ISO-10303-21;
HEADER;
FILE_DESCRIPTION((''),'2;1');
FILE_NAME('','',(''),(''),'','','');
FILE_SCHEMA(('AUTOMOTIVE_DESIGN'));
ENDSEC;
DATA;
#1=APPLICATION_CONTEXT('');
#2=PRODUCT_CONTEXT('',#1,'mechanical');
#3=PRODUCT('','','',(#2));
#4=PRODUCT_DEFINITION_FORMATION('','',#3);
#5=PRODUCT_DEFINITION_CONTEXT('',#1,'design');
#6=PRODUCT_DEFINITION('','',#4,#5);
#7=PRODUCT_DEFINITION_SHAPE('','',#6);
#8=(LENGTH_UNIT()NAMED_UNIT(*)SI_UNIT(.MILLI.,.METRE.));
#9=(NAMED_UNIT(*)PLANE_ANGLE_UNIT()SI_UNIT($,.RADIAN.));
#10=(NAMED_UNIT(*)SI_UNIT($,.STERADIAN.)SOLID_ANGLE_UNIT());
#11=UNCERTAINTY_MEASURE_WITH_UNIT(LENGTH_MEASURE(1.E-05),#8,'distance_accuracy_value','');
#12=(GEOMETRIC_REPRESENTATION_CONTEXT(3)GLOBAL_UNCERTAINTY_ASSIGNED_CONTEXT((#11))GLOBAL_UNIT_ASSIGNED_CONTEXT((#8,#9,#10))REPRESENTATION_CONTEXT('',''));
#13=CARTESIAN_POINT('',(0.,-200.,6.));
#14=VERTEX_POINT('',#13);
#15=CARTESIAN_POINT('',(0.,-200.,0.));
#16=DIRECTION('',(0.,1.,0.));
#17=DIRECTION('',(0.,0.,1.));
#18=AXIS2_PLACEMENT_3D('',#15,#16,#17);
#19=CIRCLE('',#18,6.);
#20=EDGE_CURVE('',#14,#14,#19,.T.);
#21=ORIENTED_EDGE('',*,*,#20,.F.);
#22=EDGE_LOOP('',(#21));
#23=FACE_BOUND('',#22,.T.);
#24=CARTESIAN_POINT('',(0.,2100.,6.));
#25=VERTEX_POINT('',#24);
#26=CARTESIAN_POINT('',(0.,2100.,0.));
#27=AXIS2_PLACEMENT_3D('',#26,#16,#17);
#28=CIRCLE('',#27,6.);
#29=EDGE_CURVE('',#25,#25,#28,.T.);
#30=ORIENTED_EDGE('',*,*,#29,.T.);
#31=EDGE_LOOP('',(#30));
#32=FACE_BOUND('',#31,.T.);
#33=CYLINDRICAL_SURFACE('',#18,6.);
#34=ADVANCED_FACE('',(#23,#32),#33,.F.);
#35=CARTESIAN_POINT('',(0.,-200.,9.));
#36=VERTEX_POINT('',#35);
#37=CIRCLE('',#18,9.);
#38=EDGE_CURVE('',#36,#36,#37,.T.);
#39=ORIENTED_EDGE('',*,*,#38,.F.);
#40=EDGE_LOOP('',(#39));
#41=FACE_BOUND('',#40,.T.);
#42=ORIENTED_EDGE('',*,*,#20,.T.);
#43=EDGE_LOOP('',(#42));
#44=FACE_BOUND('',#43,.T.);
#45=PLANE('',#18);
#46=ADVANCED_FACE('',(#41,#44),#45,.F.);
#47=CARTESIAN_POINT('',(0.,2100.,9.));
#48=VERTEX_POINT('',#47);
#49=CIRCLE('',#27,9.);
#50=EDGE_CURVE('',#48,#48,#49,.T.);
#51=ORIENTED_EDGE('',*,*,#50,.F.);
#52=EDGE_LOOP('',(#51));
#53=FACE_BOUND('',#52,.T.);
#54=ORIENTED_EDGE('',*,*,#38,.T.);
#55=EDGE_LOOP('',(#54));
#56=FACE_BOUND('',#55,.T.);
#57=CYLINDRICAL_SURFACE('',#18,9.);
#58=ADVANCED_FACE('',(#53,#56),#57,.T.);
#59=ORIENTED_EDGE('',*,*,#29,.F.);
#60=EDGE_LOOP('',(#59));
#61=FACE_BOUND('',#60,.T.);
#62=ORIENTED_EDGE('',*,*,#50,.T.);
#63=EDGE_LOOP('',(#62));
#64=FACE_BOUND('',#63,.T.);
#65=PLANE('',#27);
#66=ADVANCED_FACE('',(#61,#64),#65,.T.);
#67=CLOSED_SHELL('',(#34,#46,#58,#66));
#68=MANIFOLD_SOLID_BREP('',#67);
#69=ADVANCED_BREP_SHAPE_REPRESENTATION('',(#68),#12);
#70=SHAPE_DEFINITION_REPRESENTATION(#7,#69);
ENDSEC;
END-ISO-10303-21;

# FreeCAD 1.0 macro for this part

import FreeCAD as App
import Part
import Sketcher

doc = App.newDocument("Part")
body = doc.addObject("PartDesign::Body", "Body")

# Sketch on XZ plane
sketch1 = body.newObject("Sketcher::SketchObject", "Sketch")
sketch1.AttachmentSupport = (doc.getObject("XZ_Plane"), [""])
sketch1.MapMode = "FlatFace"
sketch1.addGeometry(Part.Circle(App.Vector(0, 0, 0), App.Vector(0, 0, 1), 9), False)
sketch1.addGeometry(Part.Circle(App.Vector(0, 0, 0), App.Vector(0, 0, 1), 6), False)
sketch1.addConstraint(Sketcher.Constraint("Coincident", 0, 3, -1, 1))
sketch1.addConstraint(Sketcher.Constraint("Coincident", 1, 3, -1, 1))
sketch1.addConstraint(Sketcher.Constraint("Diameter", 0, 18.0))
sketch1.addConstraint(Sketcher.Constraint("Diameter", 1, 12.0))
pad1 = body.newObject("PartDesign::Pad", "Pad")
pad1.Profile = sketch1
pad1.Type = "TwoLengths"
pad1.Length = 2100
pad1.Length2 = 200
pad1.Reversed = True

doc.recompute()
